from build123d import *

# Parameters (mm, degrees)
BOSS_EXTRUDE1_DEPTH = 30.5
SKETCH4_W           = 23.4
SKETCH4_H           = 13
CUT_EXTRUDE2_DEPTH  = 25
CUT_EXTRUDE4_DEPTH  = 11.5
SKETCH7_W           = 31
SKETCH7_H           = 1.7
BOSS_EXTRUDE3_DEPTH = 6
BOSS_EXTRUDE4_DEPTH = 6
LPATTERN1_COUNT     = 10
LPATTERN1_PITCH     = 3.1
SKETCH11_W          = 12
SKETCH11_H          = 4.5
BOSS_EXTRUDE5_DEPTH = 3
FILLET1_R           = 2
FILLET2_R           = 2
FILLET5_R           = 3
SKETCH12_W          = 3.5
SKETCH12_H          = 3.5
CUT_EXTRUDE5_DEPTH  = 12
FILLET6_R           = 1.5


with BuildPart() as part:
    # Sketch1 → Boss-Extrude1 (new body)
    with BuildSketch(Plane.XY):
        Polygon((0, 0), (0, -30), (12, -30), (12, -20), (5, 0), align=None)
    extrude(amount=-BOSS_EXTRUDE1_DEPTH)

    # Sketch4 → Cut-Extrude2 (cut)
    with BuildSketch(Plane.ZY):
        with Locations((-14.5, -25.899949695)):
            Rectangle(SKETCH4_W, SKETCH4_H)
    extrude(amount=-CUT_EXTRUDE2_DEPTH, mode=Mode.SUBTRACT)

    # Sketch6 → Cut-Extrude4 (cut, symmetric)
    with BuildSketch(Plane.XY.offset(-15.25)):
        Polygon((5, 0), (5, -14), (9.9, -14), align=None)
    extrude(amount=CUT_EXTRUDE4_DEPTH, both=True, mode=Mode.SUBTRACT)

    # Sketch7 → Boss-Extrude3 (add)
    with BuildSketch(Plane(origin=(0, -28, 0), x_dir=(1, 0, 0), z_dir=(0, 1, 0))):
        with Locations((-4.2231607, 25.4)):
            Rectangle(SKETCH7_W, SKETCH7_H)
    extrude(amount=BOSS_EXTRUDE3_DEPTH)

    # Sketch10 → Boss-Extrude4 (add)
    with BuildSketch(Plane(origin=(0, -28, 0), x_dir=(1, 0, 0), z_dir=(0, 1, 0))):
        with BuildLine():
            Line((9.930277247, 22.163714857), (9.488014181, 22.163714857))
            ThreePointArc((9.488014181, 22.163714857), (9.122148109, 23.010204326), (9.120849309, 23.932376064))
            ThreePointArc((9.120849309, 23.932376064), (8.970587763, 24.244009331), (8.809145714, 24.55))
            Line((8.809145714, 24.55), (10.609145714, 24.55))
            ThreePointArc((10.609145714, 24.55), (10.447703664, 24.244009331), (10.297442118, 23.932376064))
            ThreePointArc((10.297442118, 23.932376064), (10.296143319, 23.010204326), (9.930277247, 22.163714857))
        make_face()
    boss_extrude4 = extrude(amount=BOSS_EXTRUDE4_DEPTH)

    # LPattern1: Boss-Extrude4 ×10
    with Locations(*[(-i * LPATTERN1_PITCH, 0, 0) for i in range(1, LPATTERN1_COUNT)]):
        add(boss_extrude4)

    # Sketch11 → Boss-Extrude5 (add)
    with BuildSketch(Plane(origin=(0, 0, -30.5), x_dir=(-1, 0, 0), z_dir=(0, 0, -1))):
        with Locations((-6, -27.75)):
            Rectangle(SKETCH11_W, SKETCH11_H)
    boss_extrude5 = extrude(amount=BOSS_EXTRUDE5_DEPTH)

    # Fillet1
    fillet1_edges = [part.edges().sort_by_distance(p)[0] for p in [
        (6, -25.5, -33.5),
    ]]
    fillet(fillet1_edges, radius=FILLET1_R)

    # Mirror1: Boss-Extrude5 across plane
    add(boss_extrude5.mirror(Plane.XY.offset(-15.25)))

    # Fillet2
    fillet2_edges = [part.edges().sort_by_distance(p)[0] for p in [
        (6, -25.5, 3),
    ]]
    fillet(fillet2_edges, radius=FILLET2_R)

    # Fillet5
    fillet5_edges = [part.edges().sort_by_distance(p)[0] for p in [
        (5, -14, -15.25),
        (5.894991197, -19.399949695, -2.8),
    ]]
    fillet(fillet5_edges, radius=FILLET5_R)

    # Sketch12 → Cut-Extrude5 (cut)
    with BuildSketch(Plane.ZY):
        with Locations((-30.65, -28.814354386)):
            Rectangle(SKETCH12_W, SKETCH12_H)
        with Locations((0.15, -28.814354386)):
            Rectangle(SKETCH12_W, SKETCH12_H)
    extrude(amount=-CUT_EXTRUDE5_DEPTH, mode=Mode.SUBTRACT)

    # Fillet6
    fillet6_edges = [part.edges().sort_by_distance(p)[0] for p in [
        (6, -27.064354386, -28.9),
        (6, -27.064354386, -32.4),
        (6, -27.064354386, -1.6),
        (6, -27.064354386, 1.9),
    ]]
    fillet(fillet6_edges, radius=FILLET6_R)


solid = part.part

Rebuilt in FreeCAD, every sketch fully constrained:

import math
import FreeCAD as App
import Part
import Sketcher

V = App.Vector
Q = App.Units.Quantity


def edges_at(feature, points):
    """Names of the edges that pass closest to the given points."""
    edges = feature.Shape.Edges
    near = lambda p: min(range(len(edges)), key=lambda i: edges[i].distToShape(Part.Vertex(*p))[0])
    return sorted({f"Edge{near(p) + 1}" for p in points})

doc = App.newDocument("Part")
params = doc.addObject("Spreadsheet::Sheet", "Params")
for row, (alias, value) in enumerate([
    ("sketch1_width", "12 mm"),
    ("sketch1_width2", "5 mm"),
    ("sketch1_height", "30 mm"),
    ("sketch1_height2", "10 mm"),
    ("pad1_length", "30.5 mm"),
    ("sketch2_width", "13 mm"),
    ("sketch2_height", "23.4 mm"),
    ("pocket1_length", "25 mm"),
    ("sketch3_height", "14 mm"),
    ("sketch3_width", "4.9 mm"),
    ("pocket2_length", "23 mm"),
    ("sketch4_width", "31 mm"),
    ("sketch4_height", "1.7 mm"),
    ("pad2_length", "6 mm"),
    ("sketch5_width", "1.8 mm"),
    ("pad3_length", "6 mm"),
    ("linearpattern_pitch", "3.1 mm"),
    ("sketch6_width", "12 mm"),
    ("sketch6_height", "4.5 mm"),
    ("pad4_length", "3 mm"),
    ("fillet_radius", "2 mm"),
    ("fillet2_radius", "2 mm"),
    ("fillet3_radius", "3 mm"),
    ("sketch7_width", "3.5 mm"),
    ("pocket3_length", "12 mm"),
    ("fillet4_radius", "1.5 mm"),
], start=1):
    params.set(f"A{row}", alias)
    params.set(f"B{row}", "=" + value)
    params.setAlias(f"B{row}", alias)

body = doc.addObject("PartDesign::Body", "Body")

# Sketch on XY plane
sketch1 = body.newObject("Sketcher::SketchObject", "Sketch")
sketch1.AttachmentSupport = (doc.getObject("XY_Plane"), [""])
sketch1.MapMode = "FlatFace"
sketch1.addGeometry(Part.LineSegment(V(0, 0, 0), V(0, -30, 0)), False)
sketch1.addGeometry(Part.LineSegment(V(0, -30, 0), V(12, -30, 0)), False)
sketch1.addGeometry(Part.LineSegment(V(12, -30, 0), V(12, -20, 0)), False)
sketch1.addGeometry(Part.LineSegment(V(12, -20, 0), V(5, 0, 0)), False)
sketch1.addGeometry(Part.LineSegment(V(5, 0, 0), V(0, 0, 0)), False)
sketch1.addConstraint(Sketcher.Constraint("Coincident", 0, 2, 1, 1))
sketch1.addConstraint(Sketcher.Constraint("Coincident", 1, 2, 2, 1))
sketch1.addConstraint(Sketcher.Constraint("Coincident", 2, 2, 3, 1))
sketch1.addConstraint(Sketcher.Constraint("Coincident", 3, 2, 4, 1))
sketch1.addConstraint(Sketcher.Constraint("Coincident", 4, 2, 0, 1))
sketch1.addConstraint(Sketcher.Constraint("Vertical", 0))
sketch1.addConstraint(Sketcher.Constraint("Horizontal", 1))
sketch1.addConstraint(Sketcher.Constraint("Vertical", 2))
sketch1.addConstraint(Sketcher.Constraint("Horizontal", 4))
sketch1.addConstraint(Sketcher.Constraint("Coincident", 4, 2, -1, 1))
sketch1.addConstraint(Sketcher.Constraint("DistanceX", 1, 1, 1, 2, Q("12 mm")))
sketch1.addConstraint(Sketcher.Constraint("DistanceX", 4, 2, 4, 1, Q("5 mm")))
sketch1.addConstraint(Sketcher.Constraint("DistanceY", 0, 2, 0, 1, Q("30 mm")))
sketch1.addConstraint(Sketcher.Constraint("DistanceY", 2, 1, 2, 2, Q("10 mm")))
sketch1.setExpression("Constraints[10]", "Params.sketch1_width")
sketch1.setExpression("Constraints[11]", "Params.sketch1_width2")
sketch1.setExpression("Constraints[12]", "Params.sketch1_height")
sketch1.setExpression("Constraints[13]", "Params.sketch1_height2")
pad1 = body.newObject("PartDesign::Pad", "Pad")
pad1.Profile = sketch1
pad1.setExpression("Length", "Params.pad1_length")
pad1.Reversed = True

# Sketch on YZ plane
sketch2 = body.newObject("Sketcher::SketchObject", "Sketch001")
sketch2.AttachmentSupport = (doc.getObject("YZ_Plane"), [""])
sketch2.MapMode = "FlatFace"
sketch2.addGeometry(Part.LineSegment(V(-19, -26, 0), V(-32, -26, 0)), False)
sketch2.addGeometry(Part.LineSegment(V(-32, -26, 0), V(-32, -3, 0)), False)
sketch2.addGeometry(Part.LineSegment(V(-32, -3, 0), V(-19, -3, 0)), False)
sketch2.addGeometry(Part.LineSegment(V(-19, -3, 0), V(-19, -26, 0)), False)
sketch2.addConstraint(Sketcher.Constraint("Coincident", 0, 2, 1, 1))
sketch2.addConstraint(Sketcher.Constraint("Coincident", 1, 2, 2, 1))
sketch2.addConstraint(Sketcher.Constraint("Coincident", 2, 2, 3, 1))
sketch2.addConstraint(Sketcher.Constraint("Coincident", 3, 2, 0, 1))
sketch2.addConstraint(Sketcher.Constraint("Horizontal", 0))
sketch2.addConstraint(Sketcher.Constraint("Vertical", 1))
sketch2.addConstraint(Sketcher.Constraint("Horizontal", 2))
sketch2.addConstraint(Sketcher.Constraint("Vertical", 3))
sketch2.addConstraint(Sketcher.Constraint("DistanceX", 0, 2, 0, 1, Q("13 mm")))
sketch2.addConstraint(Sketcher.Constraint("DistanceY", 1, 1, 1, 2, Q("23.4 mm")))
sketch2.addConstraint(Sketcher.Constraint("DistanceY", 0, 2, -1, 1, Q("26.2 mm")))
sketch2.addConstraint(Sketcher.Constraint("DistanceX", 0, 2, -1, 1, Q("32.39995 mm")))
sketch2.setExpression("Constraints[8]", "Params.sketch2_width")
sketch2.setExpression("Constraints[9]", "Params.sketch2_height")
pocket1 = body.newObject("PartDesign::Pocket", "Pocket")
pocket1.Profile = sketch2
pocket1.setExpression("Length", "Params.pocket1_length")
pocket1.Reversed = True

# Sketch on XY plane
sketch3 = body.newObject("Sketcher::SketchObject", "Sketch002")
sketch3.AttachmentSupport = (doc.getObject("XY_Plane"), [""])
sketch3.MapMode = "FlatFace"
sketch3.AttachmentOffset = App.Placement(V(0, 0, -15.25), App.Rotation())
sketch3.addGeometry(Part.LineSegment(V(5, 0, 0), V(5, -14, 0)), False)
sketch3.addGeometry(Part.LineSegment(V(5, -14, 0), V(9.9, -14, 0)), False)
sketch3.addGeometry(Part.LineSegment(V(9.9, -14, 0), V(5, 0, 0)), False)
sketch3.addConstraint(Sketcher.Constraint("Coincident", 0, 2, 1, 1))
sketch3.addConstraint(Sketcher.Constraint("Coincident", 1, 2, 2, 1))
sketch3.addConstraint(Sketcher.Constraint("Coincident", 2, 2, 0, 1))
sketch3.addConstraint(Sketcher.Constraint("Vertical", 0))
sketch3.addConstraint(Sketcher.Constraint("Horizontal", 1))
sketch3.addConstraint(Sketcher.Constraint("PointOnObject", 2, 2, -1))
sketch3.addConstraint(Sketcher.Constraint("DistanceY", 0, 2, 0, 1, Q("14 mm")))
sketch3.addConstraint(Sketcher.Constraint("DistanceX", 1, 1, 1, 2, Q("4.9 mm")))
sketch3.addConstraint(Sketcher.Constraint("DistanceX", -1, 1, 0, 2, Q("5 mm")))
sketch3.setExpression("Constraints[6]", "Params.sketch3_height")
sketch3.setExpression("Constraints[7]", "Params.sketch3_width")
pocket2 = body.newObject("PartDesign::Pocket", "Pocket001")
pocket2.Profile = sketch3
pocket2.setExpression("Length", "Params.pocket2_length")
pocket2.Midplane = True

# Sketch on XZ plane
sketch4 = body.newObject("Sketcher::SketchObject", "Sketch003")
sketch4.AttachmentSupport = (doc.getObject("XZ_Plane"), [""])
sketch4.MapMode = "FlatFace"
sketch4.AttachmentOffset = App.Placement(V(0, 0, 28), App.Rotation())
sketch4.addGeometry(Part.LineSegment(V(-19.7, -26.2, 0), V(-19.7, -24.6, 0)), False)
sketch4.addGeometry(Part.LineSegment(V(-19.7, -24.6, 0), V(11.3, -24.6, 0)), False)
sketch4.addGeometry(Part.LineSegment(V(11.3, -24.6, 0), V(11.3, -26.2, 0)), False)
sketch4.addGeometry(Part.LineSegment(V(11.3, -26.2, 0), V(-19.7, -26.2, 0)), False)
sketch4.addConstraint(Sketcher.Constraint("Coincident", 0, 2, 1, 1))
sketch4.addConstraint(Sketcher.Constraint("Coincident", 1, 2, 2, 1))
sketch4.addConstraint(Sketcher.Constraint("Coincident", 2, 2, 3, 1))
sketch4.addConstraint(Sketcher.Constraint("Coincident", 3, 2, 0, 1))
sketch4.addConstraint(Sketcher.Constraint("Vertical", 0))
sketch4.addConstraint(Sketcher.Constraint("Horizontal", 1))
sketch4.addConstraint(Sketcher.Constraint("Vertical", 2))
sketch4.addConstraint(Sketcher.Constraint("Horizontal", 3))
sketch4.addConstraint(Sketcher.Constraint("DistanceX", 1, 1, 1, 2, Q("31 mm")))
sketch4.addConstraint(Sketcher.Constraint("DistanceY", 0, 1, 0, 2, Q("1.7 mm")))
sketch4.addConstraint(Sketcher.Constraint("DistanceY", 0, 2, -1, 1, Q("24.55 mm")))
sketch4.addConstraint(Sketcher.Constraint("DistanceX", 0, 2, -1, 1, Q("19.723161 mm")))
sketch4.setExpression("Constraints[8]", "Params.sketch4_width")
sketch4.setExpression("Constraints[9]", "Params.sketch4_height")
pad2 = body.newObject("PartDesign::Pad", "Pad001")
pad2.Profile = sketch4
pad2.setExpression("Length", "Params.pad2_length")
pad2.Reversed = True

# Sketch on XZ plane
sketch5 = body.newObject("Sketcher::SketchObject", "Sketch004")
sketch5.AttachmentSupport = (doc.getObject("XZ_Plane"), [""])
sketch5.MapMode = "FlatFace"
sketch5.AttachmentOffset = App.Placement(V(0, 0, 28), App.Rotation())
sketch5.addGeometry(Part.LineSegment(V(9.49, -22.16, 0), V(9.93, -22.16, 0)), False)
sketch5.addGeometry(Part.ArcOfCircle(Part.Circle(V(8.06, -23.47, 0), V(0, 0, 1), 2.28), math.radians(-12), math.radians(35)), False)
sketch5.addGeometry(Part.ArcOfCircle(Part.Circle(V(18.98, -19.94, 0), V(0, 0, 1), 9.56), math.radians(-155.29), math.radians(-151.15)), False)
sketch5.addGeometry(Part.LineSegment(V(10.61, -24.55, 0), V(8.81, -24.55, 0)), False)
sketch5.addGeometry(Part.ArcOfCircle(Part.Circle(V(0.44, -19.94, 0), V(0, 0, 1), 9.56), math.radians(-28.85), math.radians(-24.71)), False)
sketch5.addGeometry(Part.ArcOfCircle(Part.Circle(V(11.36, -23.47, 0), V(0, 0, 1), 2.28), math.radians(145), math.radians(192)), False)
sketch5.addConstraint(Sketcher.Constraint("Coincident", 0, 2, 1, 2))
sketch5.addConstraint(Sketcher.Constraint("Coincident", 1, 1, 2, 1))
sketch5.addConstraint(Sketcher.Constraint("Coincident", 2, 2, 3, 1))
sketch5.addConstraint(Sketcher.Constraint("Coincident", 3, 2, 4, 1))
sketch5.addConstraint(Sketcher.Constraint("Coincident", 4, 2, 5, 2))
sketch5.addConstraint(Sketcher.Constraint("Coincident", 5, 1, 0, 1))
sketch5.addConstraint(Sketcher.Constraint("Horizontal", 0))
sketch5.addConstraint(Sketcher.Constraint("Horizontal", 3))
sketch5.addConstraint(Sketcher.Constraint("Equal", 2, 4))
sketch5.addConstraint(Sketcher.Constraint("Equal", 1, 5))
sketch5.addConstraint(Sketcher.Constraint("Horizontal", 2, 3, 4, 3))
sketch5.addConstraint(Sketcher.Constraint("Horizontal", 1, 3, 5, 3))
sketch5.addConstraint(Sketcher.Constraint("Horizontal", 1, 1, 4, 2))
sketch5.addConstraint(Sketcher.Constraint("DistanceX", 3, 2, 3, 1, Q("1.8 mm")))
sketch5.addConstraint(Sketcher.Constraint("Radius", 2, Q("9.5574 mm")))
sketch5.addConstraint(Sketcher.Constraint("DistanceY", 2, 2, -1, 1, Q("24.55 mm")))
sketch5.addConstraint(Sketcher.Constraint("Radius", 1, Q("2.28394 mm")))
sketch5.addConstraint(Sketcher.Constraint("DistanceX", 0, 1, 0, 2, Q("0.442263 mm")))
sketch5.addConstraint(Sketcher.Constraint("DistanceX", -1, 1, 1, 3, Q("8.059881 mm")))
sketch5.addConstraint(Sketcher.Constraint("DistanceY", 1, 3, -1, 1, Q("23.474441 mm")))
sketch5.addConstraint(Sketcher.Constraint("DistanceY", 4, 3, -1, 1, Q("19.937882 mm")))
sketch5.addConstraint(Sketcher.Constraint("DistanceX", -1, 1, 5, 3, Q("11.35841 mm")))
sketch5.setExpression("Constraints[13]", "Params.sketch5_width")
pad3 = body.newObject("PartDesign::Pad", "Pad002")
pad3.Profile = sketch5
pad3.setExpression("Length", "Params.pad3_length")
pad3.Reversed = True
doc.recompute()

linearpattern = body.newObject("PartDesign::LinearPattern", "LinearPattern")
linearpattern.Originals = [pad3]
linearpattern.Direction = (doc.getObject("X_Axis"), [""])
linearpattern.Mode = "offset"
linearpattern.setExpression("Offset", "Params.linearpattern_pitch")
linearpattern.Occurrences = 10
linearpattern.Reversed = True
body.Tip = linearpattern

# Sketch on XY plane
sketch6 = body.newObject("Sketcher::SketchObject", "Sketch005")
sketch6.AttachmentSupport = (doc.getObject("XY_Plane"), [""])
sketch6.MapMode = "FlatFace"
sketch6.AttachmentOffset = App.Placement(V(0, 0, -30.5), App.Rotation())
sketch6.addGeometry(Part.LineSegment(V(12, -25.5, 0), V(12, -30, 0)), False)
sketch6.addGeometry(Part.LineSegment(V(12, -30, 0), V(0, -30, 0)), False)
sketch6.addGeometry(Part.LineSegment(V(0, -30, 0), V(0, -25.5, 0)), False)
sketch6.addGeometry(Part.LineSegment(V(0, -25.5, 0), V(12, -25.5, 0)), False)
sketch6.addConstraint(Sketcher.Constraint("Coincident", 0, 2, 1, 1))
sketch6.addConstraint(Sketcher.Constraint("Coincident", 1, 2, 2, 1))
sketch6.addConstraint(Sketcher.Constraint("Coincident", 2, 2, 3, 1))
sketch6.addConstraint(Sketcher.Constraint("Coincident", 3, 2, 0, 1))
sketch6.addConstraint(Sketcher.Constraint("Vertical", 0))
sketch6.addConstraint(Sketcher.Constraint("Horizontal", 1))
sketch6.addConstraint(Sketcher.Constraint("Vertical", 2))
sketch6.addConstraint(Sketcher.Constraint("Horizontal", 3))
sketch6.addConstraint(Sketcher.Constraint("PointOnObject", 1, 2, -2))
sketch6.addConstraint(Sketcher.Constraint("DistanceX", 1, 2, 1, 1, Q("12 mm")))
sketch6.addConstraint(Sketcher.Constraint("DistanceY", 0, 2, 0, 1, Q("4.5 mm")))
sketch6.addConstraint(Sketcher.Constraint("DistanceY", 0, 2, -1, 1, Q("30 mm")))
sketch6.setExpression("Constraints[9]", "Params.sketch6_width")
sketch6.setExpression("Constraints[10]", "Params.sketch6_height")
pad4 = body.newObject("PartDesign::Pad", "Pad003")
pad4.Profile = sketch6
pad4.setExpression("Length", "Params.pad4_length")
pad4.Reversed = True
doc.recompute()

fillet = body.newObject("PartDesign::Fillet", "Fillet")
fillet.Base = (pad4, edges_at(pad4, [(6, -25.5, -33.5)]))
fillet.setExpression("Radius", "Params.fillet_radius")
doc.recompute()

datumplane = body.newObject("PartDesign::Plane", "DatumPlane")
datumplane.AttachmentSupport = (doc.getObject("XY_Plane"), [""])
datumplane.MapMode = "FlatFace"
datumplane.AttachmentOffset = App.Placement(V(0, 0, -15.25), App.Rotation())
mirrored = body.newObject("PartDesign::Mirrored", "Mirrored")
mirrored.Originals = [pad4]
mirrored.MirrorPlane = (datumplane, [""])
body.Tip = mirrored
doc.recompute()

fillet2 = body.newObject("PartDesign::Fillet", "Fillet001")
fillet2.Base = (mirrored, edges_at(mirrored, [(6, -25.5, 3)]))
fillet2.setExpression("Radius", "Params.fillet2_radius")
doc.recompute()

fillet3 = body.newObject("PartDesign::Fillet", "Fillet002")
fillet3.Base = (fillet2, edges_at(fillet2, [(5, -14, -15.25), (5.895, -19.4, -2.8)]))
fillet3.setExpression("Radius", "Params.fillet3_radius")

# Sketch on YZ plane
sketch7 = body.newObject("Sketcher::SketchObject", "Sketch006")
sketch7.AttachmentSupport = (doc.getObject("YZ_Plane"), [""])
sketch7.MapMode = "FlatFace"
sketch7.addGeometry(Part.LineSegment(V(-27.1, -32.4, 0), V(-30.6, -32.4, 0)), False)
sketch7.addGeometry(Part.LineSegment(V(-30.6, -32.4, 0), V(-30.6, -28.9, 0)), False)
sketch7.addGeometry(Part.LineSegment(V(-30.6, -28.9, 0), V(-27.1, -28.9, 0)), False)
sketch7.addGeometry(Part.LineSegment(V(-27.1, -28.9, 0), V(-27.1, -32.4, 0)), False)
sketch7.addGeometry(Part.LineSegment(V(-27.1, -1.6, 0), V(-30.6, -1.6, 0)), False)
sketch7.addGeometry(Part.LineSegment(V(-30.6, -1.6, 0), V(-30.6, 1.9, 0)), False)
sketch7.addGeometry(Part.LineSegment(V(-30.6, 1.9, 0), V(-27.1, 1.9, 0)), False)
sketch7.addGeometry(Part.LineSegment(V(-27.1, 1.9, 0), V(-27.1, -1.6, 0)), False)
sketch7.addConstraint(Sketcher.Constraint("Coincident", 0, 2, 1, 1))
sketch7.addConstraint(Sketcher.Constraint("Coincident", 1, 2, 2, 1))
sketch7.addConstraint(Sketcher.Constraint("Coincident", 2, 2, 3, 1))
sketch7.addConstraint(Sketcher.Constraint("Coincident", 3, 2, 0, 1))
sketch7.addConstraint(Sketcher.Constraint("Coincident", 4, 2, 5, 1))
sketch7.addConstraint(Sketcher.Constraint("Coincident", 5, 2, 6, 1))
sketch7.addConstraint(Sketcher.Constraint("Coincident", 6, 2, 7, 1))
sketch7.addConstraint(Sketcher.Constraint("Coincident", 7, 2, 4, 1))
sketch7.addConstraint(Sketcher.Constraint("Horizontal", 0))
sketch7.addConstraint(Sketcher.Constraint("Vertical", 1))
sketch7.addConstraint(Sketcher.Constraint("Horizontal", 2))
sketch7.addConstraint(Sketcher.Constraint("Vertical", 3))
sketch7.addConstraint(Sketcher.Constraint("Horizontal", 4))
sketch7.addConstraint(Sketcher.Constraint("Vertical", 5))
sketch7.addConstraint(Sketcher.Constraint("Horizontal", 6))
sketch7.addConstraint(Sketcher.Constraint("Vertical", 7))
sketch7.addConstraint(Sketcher.Constraint("Vertical", 1, 2, 4, 2))
sketch7.addConstraint(Sketcher.Constraint("Vertical", 3, 2, 6, 2))
sketch7.addConstraint(Sketcher.Constraint("Equal", 6, 1))
sketch7.addConstraint(Sketcher.Constraint("Equal", 3, 5))
sketch7.addConstraint(Sketcher.Constraint("DistanceX", 0, 2, 0, 1, Q("3.5 mm")))
sketch7.addConstraint(Sketcher.Constraint("DistanceY", 0, 2, -1, 1, Q("32.4 mm")))
sketch7.addConstraint(Sketcher.Constraint("DistanceY", 4, 2, -1, 1, Q("1.6 mm")))
sketch7.addConstraint(Sketcher.Constraint("DistanceX", 0, 2, -1, 1, Q("30.564354 mm")))
sketch7.setExpression("Constraints[20]", "Params.sketch7_width")
pocket3 = body.newObject("PartDesign::Pocket", "Pocket002")
pocket3.Profile = sketch7
pocket3.setExpression("Length", "Params.pocket3_length")
pocket3.Reversed = True
doc.recompute()

fillet4 = body.newObject("PartDesign::Fillet", "Fillet003")
fillet4.Base = (pocket3, edges_at(pocket3, [
    (6, -27.064, -28.9),
    (6, -27.064, -32.4),
    (6, -27.064, -1.6),
    (6, -27.064, 1.9),
]))
fillet4.setExpression("Radius", "Params.fillet4_radius")

doc.recompute()
